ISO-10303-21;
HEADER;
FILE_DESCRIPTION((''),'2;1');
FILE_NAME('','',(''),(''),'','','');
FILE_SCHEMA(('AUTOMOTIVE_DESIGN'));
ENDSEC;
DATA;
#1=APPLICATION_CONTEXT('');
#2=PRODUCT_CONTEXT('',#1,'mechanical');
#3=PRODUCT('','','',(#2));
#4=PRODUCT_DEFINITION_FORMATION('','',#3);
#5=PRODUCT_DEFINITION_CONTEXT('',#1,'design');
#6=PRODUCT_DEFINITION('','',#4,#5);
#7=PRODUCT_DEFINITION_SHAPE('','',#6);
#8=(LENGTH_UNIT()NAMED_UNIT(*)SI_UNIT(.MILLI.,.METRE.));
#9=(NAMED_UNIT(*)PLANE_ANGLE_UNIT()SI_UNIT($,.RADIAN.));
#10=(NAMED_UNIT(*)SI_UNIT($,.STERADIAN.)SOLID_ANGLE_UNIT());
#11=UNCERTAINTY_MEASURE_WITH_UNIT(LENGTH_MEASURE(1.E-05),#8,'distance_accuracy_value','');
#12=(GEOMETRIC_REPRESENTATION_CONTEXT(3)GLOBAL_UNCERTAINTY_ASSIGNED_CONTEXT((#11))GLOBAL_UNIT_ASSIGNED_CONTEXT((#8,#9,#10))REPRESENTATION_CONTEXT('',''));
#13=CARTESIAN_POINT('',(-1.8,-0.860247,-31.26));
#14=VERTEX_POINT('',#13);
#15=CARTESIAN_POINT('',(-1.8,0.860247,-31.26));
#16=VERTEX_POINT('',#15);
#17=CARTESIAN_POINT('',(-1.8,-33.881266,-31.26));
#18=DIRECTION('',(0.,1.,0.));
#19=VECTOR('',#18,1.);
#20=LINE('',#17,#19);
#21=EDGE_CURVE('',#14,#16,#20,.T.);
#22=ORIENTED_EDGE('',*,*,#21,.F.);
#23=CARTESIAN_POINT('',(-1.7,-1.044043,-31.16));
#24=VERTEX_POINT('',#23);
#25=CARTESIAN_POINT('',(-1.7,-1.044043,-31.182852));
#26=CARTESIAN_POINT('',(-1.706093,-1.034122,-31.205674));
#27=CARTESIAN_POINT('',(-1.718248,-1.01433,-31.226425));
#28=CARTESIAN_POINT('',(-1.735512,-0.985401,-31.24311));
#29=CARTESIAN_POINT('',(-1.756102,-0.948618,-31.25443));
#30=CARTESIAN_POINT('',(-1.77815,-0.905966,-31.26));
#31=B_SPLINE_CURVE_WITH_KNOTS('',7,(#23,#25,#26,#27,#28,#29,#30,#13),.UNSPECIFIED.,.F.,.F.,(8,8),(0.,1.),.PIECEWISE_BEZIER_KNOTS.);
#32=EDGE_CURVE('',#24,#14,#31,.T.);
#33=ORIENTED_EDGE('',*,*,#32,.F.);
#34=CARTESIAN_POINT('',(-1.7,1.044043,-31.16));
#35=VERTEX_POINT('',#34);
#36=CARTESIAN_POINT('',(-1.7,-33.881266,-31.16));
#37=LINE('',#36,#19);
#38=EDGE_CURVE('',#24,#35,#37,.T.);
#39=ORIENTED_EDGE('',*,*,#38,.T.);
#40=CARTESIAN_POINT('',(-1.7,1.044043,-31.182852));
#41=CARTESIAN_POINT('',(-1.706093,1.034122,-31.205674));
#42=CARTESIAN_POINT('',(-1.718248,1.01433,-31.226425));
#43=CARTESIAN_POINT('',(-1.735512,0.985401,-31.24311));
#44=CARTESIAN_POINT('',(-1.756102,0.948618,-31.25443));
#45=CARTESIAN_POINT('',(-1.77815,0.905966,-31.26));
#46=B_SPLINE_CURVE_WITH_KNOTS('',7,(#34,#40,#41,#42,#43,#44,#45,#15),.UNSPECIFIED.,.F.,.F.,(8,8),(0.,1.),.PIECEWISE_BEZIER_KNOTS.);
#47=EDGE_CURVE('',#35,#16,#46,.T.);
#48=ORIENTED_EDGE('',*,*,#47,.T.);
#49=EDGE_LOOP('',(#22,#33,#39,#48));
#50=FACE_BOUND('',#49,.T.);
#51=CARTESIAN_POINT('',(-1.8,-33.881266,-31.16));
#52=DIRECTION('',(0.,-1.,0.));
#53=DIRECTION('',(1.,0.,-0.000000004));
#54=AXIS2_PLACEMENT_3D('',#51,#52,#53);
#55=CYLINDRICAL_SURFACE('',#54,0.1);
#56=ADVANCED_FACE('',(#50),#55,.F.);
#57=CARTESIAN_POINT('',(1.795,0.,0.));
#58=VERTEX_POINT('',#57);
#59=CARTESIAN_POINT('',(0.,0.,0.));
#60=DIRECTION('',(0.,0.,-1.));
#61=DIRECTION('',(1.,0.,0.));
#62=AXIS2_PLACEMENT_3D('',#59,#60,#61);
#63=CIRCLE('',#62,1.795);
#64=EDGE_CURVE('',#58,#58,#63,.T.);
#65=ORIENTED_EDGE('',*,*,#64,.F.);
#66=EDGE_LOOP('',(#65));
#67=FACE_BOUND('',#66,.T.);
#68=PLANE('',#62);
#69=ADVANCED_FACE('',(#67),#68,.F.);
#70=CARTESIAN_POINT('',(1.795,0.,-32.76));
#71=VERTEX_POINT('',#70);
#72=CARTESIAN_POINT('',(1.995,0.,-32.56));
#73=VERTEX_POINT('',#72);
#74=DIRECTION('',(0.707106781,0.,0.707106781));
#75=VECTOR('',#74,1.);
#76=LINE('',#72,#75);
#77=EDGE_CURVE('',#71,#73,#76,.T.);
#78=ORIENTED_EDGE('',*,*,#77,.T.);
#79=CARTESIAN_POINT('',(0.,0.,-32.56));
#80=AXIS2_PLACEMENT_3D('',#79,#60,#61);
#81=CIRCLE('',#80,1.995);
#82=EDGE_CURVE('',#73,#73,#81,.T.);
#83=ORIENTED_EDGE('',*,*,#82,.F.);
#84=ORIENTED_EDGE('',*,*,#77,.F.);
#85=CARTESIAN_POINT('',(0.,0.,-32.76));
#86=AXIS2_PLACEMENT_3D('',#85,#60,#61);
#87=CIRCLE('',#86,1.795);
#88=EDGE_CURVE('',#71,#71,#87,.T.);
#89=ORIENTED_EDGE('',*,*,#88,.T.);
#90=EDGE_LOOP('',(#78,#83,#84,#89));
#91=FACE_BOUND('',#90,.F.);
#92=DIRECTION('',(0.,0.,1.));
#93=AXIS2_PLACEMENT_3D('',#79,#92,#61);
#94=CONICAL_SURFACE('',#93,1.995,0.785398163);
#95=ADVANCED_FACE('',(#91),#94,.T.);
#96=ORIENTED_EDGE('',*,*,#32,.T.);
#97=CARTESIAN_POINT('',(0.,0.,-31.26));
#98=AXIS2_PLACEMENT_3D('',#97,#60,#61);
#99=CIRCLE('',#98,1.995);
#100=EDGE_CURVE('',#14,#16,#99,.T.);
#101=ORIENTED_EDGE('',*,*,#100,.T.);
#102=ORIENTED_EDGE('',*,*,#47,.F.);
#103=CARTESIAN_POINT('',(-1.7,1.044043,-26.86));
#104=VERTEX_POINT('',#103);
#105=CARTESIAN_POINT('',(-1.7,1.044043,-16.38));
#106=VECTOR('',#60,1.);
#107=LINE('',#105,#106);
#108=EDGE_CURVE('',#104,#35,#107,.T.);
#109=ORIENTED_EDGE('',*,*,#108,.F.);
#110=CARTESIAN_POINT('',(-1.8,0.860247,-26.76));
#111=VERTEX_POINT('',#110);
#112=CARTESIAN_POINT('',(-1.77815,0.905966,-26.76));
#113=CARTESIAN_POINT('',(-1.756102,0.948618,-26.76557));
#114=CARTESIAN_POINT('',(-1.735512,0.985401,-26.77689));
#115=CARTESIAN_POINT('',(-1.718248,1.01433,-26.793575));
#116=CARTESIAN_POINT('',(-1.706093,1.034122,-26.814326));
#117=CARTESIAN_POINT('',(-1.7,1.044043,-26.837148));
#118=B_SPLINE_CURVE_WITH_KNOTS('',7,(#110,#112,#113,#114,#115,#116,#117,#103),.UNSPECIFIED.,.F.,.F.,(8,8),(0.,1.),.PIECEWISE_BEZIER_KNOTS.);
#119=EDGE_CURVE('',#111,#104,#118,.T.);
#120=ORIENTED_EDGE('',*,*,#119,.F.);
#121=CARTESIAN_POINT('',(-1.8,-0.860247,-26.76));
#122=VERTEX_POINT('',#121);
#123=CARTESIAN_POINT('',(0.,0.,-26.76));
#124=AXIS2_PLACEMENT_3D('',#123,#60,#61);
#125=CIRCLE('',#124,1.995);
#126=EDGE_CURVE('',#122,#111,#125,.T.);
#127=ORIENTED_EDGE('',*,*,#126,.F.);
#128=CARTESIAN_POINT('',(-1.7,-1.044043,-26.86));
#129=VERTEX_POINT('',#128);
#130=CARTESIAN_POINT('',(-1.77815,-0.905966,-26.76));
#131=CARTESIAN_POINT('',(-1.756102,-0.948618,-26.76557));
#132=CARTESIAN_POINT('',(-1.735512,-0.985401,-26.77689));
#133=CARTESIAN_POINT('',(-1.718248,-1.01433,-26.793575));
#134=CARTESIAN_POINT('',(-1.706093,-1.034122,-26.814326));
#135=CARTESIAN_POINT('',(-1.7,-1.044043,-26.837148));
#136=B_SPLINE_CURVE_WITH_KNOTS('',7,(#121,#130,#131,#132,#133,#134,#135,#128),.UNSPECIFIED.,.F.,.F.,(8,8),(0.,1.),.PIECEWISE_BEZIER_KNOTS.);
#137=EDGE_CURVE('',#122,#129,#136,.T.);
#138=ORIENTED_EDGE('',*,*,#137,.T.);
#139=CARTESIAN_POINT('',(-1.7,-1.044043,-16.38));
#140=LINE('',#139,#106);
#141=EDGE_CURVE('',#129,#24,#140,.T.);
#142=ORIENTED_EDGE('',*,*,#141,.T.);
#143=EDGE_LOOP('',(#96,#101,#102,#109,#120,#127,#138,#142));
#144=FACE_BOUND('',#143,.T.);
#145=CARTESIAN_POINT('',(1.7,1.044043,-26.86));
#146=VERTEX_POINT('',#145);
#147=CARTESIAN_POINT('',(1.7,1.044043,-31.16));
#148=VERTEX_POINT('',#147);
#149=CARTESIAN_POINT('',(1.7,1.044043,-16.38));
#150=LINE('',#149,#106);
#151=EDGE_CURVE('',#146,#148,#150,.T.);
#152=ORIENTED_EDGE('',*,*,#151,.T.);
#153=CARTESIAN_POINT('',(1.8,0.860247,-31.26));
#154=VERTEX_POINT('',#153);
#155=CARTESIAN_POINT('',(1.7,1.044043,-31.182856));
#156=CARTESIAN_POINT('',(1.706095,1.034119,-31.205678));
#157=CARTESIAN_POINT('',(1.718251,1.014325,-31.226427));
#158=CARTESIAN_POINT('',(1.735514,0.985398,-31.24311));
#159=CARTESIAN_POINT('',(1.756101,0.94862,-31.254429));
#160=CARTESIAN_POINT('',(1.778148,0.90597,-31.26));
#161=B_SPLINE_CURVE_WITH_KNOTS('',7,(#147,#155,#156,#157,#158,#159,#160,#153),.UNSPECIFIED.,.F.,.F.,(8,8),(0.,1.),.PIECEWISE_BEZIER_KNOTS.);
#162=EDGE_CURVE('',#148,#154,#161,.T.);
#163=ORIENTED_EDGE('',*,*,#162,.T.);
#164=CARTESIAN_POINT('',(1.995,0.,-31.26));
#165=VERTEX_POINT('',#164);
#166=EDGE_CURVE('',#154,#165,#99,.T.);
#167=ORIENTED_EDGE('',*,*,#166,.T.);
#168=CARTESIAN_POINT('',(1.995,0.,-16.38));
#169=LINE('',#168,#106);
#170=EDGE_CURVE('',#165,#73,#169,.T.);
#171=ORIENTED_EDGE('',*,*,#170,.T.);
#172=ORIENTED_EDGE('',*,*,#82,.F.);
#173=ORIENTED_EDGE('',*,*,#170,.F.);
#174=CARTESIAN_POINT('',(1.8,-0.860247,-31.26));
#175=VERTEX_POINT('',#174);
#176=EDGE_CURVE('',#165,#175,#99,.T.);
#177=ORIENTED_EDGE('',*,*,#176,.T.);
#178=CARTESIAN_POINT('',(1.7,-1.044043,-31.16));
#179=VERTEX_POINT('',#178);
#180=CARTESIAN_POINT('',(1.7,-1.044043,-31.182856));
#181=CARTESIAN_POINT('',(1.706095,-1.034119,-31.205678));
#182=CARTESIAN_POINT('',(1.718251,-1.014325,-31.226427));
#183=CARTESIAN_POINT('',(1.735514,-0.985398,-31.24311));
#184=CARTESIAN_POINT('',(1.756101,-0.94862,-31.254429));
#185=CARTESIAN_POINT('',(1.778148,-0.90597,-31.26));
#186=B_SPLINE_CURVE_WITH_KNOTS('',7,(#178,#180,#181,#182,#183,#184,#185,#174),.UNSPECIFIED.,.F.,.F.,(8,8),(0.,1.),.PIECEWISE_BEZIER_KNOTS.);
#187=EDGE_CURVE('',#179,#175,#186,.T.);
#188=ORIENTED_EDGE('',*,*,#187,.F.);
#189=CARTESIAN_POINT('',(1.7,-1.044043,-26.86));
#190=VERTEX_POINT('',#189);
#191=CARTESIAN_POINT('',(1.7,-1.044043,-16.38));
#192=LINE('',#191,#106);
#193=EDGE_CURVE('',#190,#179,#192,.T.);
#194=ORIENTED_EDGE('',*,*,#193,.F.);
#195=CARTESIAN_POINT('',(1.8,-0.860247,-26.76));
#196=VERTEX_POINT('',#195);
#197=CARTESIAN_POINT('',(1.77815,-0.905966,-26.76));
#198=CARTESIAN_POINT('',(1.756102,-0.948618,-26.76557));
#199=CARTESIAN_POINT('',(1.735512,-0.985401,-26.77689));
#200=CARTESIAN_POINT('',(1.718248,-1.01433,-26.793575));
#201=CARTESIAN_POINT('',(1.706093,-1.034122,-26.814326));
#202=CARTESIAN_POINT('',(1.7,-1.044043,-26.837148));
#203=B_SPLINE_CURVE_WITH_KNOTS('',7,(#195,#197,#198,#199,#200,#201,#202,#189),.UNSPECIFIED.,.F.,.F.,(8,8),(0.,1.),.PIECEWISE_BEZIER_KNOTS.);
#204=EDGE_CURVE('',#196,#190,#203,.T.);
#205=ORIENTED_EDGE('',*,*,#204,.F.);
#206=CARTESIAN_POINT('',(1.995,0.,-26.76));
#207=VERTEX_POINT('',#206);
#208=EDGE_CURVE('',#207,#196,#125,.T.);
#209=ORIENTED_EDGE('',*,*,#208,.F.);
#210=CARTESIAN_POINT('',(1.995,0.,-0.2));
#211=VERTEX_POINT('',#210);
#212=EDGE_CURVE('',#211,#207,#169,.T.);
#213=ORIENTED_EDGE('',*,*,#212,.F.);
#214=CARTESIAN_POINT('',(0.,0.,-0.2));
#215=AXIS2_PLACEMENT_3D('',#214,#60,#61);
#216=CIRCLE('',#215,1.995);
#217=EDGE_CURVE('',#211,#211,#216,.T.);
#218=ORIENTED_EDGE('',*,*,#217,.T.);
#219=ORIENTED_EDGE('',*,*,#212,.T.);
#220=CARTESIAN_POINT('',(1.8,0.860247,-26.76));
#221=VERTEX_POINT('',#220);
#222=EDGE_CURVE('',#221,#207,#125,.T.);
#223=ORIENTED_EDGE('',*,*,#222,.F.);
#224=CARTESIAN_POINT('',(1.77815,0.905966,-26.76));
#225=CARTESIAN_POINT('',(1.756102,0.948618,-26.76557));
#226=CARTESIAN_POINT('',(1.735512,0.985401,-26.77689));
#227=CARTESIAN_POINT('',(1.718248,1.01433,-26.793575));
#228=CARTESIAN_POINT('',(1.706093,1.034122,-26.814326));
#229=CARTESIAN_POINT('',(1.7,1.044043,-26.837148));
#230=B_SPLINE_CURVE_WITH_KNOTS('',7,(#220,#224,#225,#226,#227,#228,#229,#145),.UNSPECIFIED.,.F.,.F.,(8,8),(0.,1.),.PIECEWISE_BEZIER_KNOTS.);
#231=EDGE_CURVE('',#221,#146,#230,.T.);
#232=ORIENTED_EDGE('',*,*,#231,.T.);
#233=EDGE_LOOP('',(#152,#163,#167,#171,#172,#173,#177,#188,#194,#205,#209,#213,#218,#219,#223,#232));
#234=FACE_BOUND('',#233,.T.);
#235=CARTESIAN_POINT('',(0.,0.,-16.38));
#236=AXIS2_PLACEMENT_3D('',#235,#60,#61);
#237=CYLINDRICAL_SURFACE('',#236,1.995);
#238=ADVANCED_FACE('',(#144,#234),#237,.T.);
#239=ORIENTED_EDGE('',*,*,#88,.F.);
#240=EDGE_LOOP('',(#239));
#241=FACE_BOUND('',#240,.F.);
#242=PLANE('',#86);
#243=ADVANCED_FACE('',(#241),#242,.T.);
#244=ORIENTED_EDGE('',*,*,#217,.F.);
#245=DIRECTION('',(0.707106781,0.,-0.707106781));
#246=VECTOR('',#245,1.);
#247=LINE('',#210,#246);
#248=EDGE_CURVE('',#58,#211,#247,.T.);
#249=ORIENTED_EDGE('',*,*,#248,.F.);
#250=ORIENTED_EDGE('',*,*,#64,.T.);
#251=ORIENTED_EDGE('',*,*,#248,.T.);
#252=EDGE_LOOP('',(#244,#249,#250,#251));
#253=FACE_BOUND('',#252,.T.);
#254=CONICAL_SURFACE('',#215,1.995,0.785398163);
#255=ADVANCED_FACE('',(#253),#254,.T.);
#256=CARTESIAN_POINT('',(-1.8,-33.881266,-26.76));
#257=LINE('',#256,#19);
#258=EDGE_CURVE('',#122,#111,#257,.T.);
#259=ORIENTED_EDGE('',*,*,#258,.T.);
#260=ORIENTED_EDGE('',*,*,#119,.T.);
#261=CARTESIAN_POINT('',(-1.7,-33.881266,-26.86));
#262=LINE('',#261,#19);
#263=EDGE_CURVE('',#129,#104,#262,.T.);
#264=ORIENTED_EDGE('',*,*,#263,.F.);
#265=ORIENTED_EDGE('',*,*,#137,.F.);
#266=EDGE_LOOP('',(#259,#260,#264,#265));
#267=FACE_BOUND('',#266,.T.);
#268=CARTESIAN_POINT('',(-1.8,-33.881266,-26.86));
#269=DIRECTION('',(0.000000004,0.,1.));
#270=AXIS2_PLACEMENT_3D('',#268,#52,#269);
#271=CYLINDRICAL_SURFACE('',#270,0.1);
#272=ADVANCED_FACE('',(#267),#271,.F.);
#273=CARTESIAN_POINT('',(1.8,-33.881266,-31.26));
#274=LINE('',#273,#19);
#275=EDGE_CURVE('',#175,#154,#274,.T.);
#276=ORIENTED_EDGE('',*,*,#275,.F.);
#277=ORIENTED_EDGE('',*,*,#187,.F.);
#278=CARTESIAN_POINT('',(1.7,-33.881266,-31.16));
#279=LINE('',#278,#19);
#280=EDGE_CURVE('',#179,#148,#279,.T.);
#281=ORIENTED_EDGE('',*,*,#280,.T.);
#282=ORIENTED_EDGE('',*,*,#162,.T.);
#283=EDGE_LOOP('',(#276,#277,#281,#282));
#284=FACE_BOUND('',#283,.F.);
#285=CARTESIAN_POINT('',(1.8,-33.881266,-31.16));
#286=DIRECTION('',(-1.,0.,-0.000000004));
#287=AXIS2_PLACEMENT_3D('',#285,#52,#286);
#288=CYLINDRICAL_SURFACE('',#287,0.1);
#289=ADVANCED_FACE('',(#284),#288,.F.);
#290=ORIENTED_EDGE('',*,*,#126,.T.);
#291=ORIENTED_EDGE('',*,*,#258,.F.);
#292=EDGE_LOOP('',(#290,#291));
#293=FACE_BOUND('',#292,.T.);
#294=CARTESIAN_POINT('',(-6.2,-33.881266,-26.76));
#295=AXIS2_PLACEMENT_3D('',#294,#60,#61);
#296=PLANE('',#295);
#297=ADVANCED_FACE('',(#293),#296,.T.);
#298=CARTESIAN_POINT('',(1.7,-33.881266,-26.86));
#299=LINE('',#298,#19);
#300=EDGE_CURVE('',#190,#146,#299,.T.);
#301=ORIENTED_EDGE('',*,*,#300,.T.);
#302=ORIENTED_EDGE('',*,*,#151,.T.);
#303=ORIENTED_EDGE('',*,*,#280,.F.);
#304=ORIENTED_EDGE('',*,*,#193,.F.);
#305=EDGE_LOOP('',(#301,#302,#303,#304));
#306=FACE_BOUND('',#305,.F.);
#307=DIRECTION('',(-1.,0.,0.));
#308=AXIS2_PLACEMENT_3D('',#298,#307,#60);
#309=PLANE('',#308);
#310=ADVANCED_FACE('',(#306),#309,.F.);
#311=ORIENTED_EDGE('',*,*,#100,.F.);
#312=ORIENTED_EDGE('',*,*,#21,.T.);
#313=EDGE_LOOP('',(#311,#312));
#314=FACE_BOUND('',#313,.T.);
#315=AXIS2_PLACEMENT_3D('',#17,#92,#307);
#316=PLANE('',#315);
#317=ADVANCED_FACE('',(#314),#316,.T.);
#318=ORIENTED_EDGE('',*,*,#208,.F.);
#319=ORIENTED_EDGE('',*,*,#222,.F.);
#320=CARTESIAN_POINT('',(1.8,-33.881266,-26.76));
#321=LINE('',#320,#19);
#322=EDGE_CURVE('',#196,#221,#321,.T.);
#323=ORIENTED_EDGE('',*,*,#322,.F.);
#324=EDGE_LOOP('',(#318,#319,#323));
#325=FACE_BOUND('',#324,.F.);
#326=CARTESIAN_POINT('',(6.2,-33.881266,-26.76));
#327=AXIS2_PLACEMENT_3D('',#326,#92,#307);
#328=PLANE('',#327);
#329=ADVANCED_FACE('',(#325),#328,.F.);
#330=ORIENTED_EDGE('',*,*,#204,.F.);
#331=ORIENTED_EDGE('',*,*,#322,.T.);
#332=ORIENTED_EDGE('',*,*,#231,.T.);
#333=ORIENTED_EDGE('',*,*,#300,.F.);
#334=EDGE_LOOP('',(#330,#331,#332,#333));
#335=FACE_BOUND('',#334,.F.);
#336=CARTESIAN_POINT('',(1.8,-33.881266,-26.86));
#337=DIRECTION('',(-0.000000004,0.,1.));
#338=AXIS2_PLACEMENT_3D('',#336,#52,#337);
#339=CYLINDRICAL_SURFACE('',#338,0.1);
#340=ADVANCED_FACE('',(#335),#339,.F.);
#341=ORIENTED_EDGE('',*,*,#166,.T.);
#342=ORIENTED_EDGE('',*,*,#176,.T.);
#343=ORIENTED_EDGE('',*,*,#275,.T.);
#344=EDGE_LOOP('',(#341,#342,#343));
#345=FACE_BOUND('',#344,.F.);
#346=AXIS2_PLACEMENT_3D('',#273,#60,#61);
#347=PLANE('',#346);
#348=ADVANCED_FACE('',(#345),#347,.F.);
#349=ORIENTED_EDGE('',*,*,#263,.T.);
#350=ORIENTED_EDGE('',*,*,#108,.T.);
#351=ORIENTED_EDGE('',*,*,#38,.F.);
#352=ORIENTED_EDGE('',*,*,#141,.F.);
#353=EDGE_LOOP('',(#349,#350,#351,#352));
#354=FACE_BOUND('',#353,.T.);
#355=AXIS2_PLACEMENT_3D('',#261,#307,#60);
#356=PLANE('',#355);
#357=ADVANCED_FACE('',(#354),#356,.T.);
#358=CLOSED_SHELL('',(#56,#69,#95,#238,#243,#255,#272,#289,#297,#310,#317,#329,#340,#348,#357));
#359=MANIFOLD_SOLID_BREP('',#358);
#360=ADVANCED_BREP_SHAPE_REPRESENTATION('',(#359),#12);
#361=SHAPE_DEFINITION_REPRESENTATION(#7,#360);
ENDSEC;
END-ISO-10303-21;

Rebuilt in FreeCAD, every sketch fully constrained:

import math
import FreeCAD as App
import Part
import Sketcher
from FreeCAD import Vector
Q = App.Units.Quantity


def edges_at(feature, points):
    """Names of the edges that pass closest to the given points."""
    edges = feature.Shape.Edges
    near = lambda p: min(range(len(edges)), key=lambda i: edges[i].distToShape(Part.Vertex(*p))[0])
    return sorted({f"Edge{near(p) + 1}" for p in points})


def add_polygon(sketch, points):
    """Adds a closed chain of lines whose ends are joined by coincident constraints."""
    first, n = sketch.GeometryCount, len(points)
    for a, b in zip(points, points[1:] + points[:1]):
        sketch.addGeometry(Part.LineSegment(App.Vector(*a, 0), App.Vector(*b, 0)), False)
    for i in range(n):
        sketch.addConstraint(Sketcher.Constraint("Coincident", first + i, 2, first + (i + 1) % n, 1))

doc = App.newDocument("Part")
body = doc.addObject("PartDesign::Body", "Body")

sketch1 = body.newObject("Sketcher::SketchObject", "Sketch")
sketch1.AttachmentSupport = (doc.getObject("YZ_Plane"), [""])
sketch1.MapMode = "FlatFace"
add_polygon(sketch1, [(1.995, 0), (0, 0), (0, -32.76), (1.995, -32.76)])
sketch1.addConstraint([
    Sketcher.Constraint("Horizontal", 0),
    Sketcher.Constraint("Vertical", 1),
    Sketcher.Constraint("Horizontal", 2),
    Sketcher.Constraint("Vertical", 3),
    Sketcher.Constraint("Coincident", 0, 2, -1, 1),
    Sketcher.Constraint("DistanceY", 1, 2, 1, 1, Q("32.76 mm")),
    Sketcher.Constraint("DistanceX", 0, 2, 0, 1, Q("1.995 mm")),
])
revolution = body.newObject("PartDesign::Revolution", "Revolution")
revolution.Profile = sketch1
revolution.ReferenceAxis = (sketch1, ["V_Axis"])
revolution.Angle = 360
doc.recompute()

chamfer = body.newObject("PartDesign::Chamfer", "Chamfer")
chamfer.Base = (revolution, edges_at(revolution, [(-1.995, 0, -32.76), (-1.995, 0, 0)]))
chamfer.Size = 0.2

sketch2 = body.newObject("Sketcher::SketchObject", "Sketch001")
sketch2.AttachmentSupport = (doc.getObject("XZ_Plane"), [""])
sketch2.MapMode = "FlatFace"
sketch2.addGeometry([
    Part.LineSegment(Vector(-6.2, -26.76, 0), Vector(-1.8, -26.76, 0)),
    Part.ArcOfCircle(Part.Circle(Vector(-1.8, -26.86, 0), Vector(0, 0, 1), 0.1), math.radians(0), math.radians(90)),
    Part.LineSegment(Vector(-1.7, -26.86, 0), Vector(-1.7, -31.16, 0)),
    Part.ArcOfCircle(Part.Circle(Vector(-1.8, -31.16, 0), Vector(0, 0, 1), 0.1), math.radians(-90), math.radians(0)),
    Part.LineSegment(Vector(-1.8, -31.26, 0), Vector(-6.2, -31.26, 0)),
    Part.LineSegment(Vector(-6.2, -31.26, 0), Vector(-6.2, -26.76, 0)),
    Part.LineSegment(Vector(1.7, -31.16, 0), Vector(1.7, -26.86, 0)),
    Part.ArcOfCircle(Part.Circle(Vector(1.8, -26.86, 0), Vector(0, 0, 1), 0.1), math.radians(90), math.radians(180)),
    Part.LineSegment(Vector(1.8, -26.76, 0), Vector(6.2, -26.76, 0)),
    Part.LineSegment(Vector(6.2, -26.76, 0), Vector(6.2, -31.26, 0)),
    Part.LineSegment(Vector(6.2, -31.26, 0), Vector(1.8, -31.26, 0)),
    Part.ArcOfCircle(Part.Circle(Vector(1.8, -31.16, 0), Vector(0, 0, 1), 0.1), math.radians(180), math.radians(270)),
], False)
sketch2.addConstraint([
    Sketcher.Constraint("Tangent", 0, 2, 1, 2),
    Sketcher.Constraint("Tangent", 1, 1, 2, 1),
    Sketcher.Constraint("Tangent", 2, 2, 3, 2),
    Sketcher.Constraint("Tangent", 3, 1, 4, 1),
    Sketcher.Constraint("Coincident", 4, 2, 5, 1),
    Sketcher.Constraint("Coincident", 5, 2, 0, 1),
    Sketcher.Constraint("Tangent", 6, 2, 7, 2),
    Sketcher.Constraint("Tangent", 7, 1, 8, 1),
    Sketcher.Constraint("Coincident", 8, 2, 9, 1),
    Sketcher.Constraint("Coincident", 9, 2, 10, 1),
    Sketcher.Constraint("Tangent", 10, 2, 11, 2),
    Sketcher.Constraint("Tangent", 11, 1, 6, 1),
    Sketcher.Constraint("Horizontal", 0),
    Sketcher.Constraint("Vertical", 2),
    Sketcher.Constraint("Horizontal", 4),
    Sketcher.Constraint("Vertical", 5),
    Sketcher.Constraint("Vertical", 6),
    Sketcher.Constraint("Horizontal", 8),
    Sketcher.Constraint("Vertical", 9),
    Sketcher.Constraint("Horizontal", 10),
    Sketcher.Constraint("Equal", 1, 3),
    Sketcher.Constraint("Equal", 3, 7),
    Sketcher.Constraint("Equal", 7, 11),
    Sketcher.Constraint("Symmetric", 1, 3, 7, 3, -2),
    Sketcher.Constraint("Symmetric", 4, 2, 9, 2, -2),
    Sketcher.Constraint("Radius", 1, Q("0.1 mm")),
    Sketcher.Constraint("DistanceX", 0, 1, 0, 2, Q("4.4 mm")),
    Sketcher.Constraint("DistanceY", 2, 2, 2, 1, Q("4.3 mm")),
    Sketcher.Constraint("DistanceX", 1, 3, -1, 1, Q("1.8 mm")),
    Sketcher.Constraint("DistanceY", 1, 3, -1, 1, Q("26.86 mm")),
])
pocket1 = body.newObject("PartDesign::Pocket", "Pocket")
pocket1.Profile = sketch2
pocket1.Type = "ThroughAll"
pocket1.Midplane = True

doc.recompute()
